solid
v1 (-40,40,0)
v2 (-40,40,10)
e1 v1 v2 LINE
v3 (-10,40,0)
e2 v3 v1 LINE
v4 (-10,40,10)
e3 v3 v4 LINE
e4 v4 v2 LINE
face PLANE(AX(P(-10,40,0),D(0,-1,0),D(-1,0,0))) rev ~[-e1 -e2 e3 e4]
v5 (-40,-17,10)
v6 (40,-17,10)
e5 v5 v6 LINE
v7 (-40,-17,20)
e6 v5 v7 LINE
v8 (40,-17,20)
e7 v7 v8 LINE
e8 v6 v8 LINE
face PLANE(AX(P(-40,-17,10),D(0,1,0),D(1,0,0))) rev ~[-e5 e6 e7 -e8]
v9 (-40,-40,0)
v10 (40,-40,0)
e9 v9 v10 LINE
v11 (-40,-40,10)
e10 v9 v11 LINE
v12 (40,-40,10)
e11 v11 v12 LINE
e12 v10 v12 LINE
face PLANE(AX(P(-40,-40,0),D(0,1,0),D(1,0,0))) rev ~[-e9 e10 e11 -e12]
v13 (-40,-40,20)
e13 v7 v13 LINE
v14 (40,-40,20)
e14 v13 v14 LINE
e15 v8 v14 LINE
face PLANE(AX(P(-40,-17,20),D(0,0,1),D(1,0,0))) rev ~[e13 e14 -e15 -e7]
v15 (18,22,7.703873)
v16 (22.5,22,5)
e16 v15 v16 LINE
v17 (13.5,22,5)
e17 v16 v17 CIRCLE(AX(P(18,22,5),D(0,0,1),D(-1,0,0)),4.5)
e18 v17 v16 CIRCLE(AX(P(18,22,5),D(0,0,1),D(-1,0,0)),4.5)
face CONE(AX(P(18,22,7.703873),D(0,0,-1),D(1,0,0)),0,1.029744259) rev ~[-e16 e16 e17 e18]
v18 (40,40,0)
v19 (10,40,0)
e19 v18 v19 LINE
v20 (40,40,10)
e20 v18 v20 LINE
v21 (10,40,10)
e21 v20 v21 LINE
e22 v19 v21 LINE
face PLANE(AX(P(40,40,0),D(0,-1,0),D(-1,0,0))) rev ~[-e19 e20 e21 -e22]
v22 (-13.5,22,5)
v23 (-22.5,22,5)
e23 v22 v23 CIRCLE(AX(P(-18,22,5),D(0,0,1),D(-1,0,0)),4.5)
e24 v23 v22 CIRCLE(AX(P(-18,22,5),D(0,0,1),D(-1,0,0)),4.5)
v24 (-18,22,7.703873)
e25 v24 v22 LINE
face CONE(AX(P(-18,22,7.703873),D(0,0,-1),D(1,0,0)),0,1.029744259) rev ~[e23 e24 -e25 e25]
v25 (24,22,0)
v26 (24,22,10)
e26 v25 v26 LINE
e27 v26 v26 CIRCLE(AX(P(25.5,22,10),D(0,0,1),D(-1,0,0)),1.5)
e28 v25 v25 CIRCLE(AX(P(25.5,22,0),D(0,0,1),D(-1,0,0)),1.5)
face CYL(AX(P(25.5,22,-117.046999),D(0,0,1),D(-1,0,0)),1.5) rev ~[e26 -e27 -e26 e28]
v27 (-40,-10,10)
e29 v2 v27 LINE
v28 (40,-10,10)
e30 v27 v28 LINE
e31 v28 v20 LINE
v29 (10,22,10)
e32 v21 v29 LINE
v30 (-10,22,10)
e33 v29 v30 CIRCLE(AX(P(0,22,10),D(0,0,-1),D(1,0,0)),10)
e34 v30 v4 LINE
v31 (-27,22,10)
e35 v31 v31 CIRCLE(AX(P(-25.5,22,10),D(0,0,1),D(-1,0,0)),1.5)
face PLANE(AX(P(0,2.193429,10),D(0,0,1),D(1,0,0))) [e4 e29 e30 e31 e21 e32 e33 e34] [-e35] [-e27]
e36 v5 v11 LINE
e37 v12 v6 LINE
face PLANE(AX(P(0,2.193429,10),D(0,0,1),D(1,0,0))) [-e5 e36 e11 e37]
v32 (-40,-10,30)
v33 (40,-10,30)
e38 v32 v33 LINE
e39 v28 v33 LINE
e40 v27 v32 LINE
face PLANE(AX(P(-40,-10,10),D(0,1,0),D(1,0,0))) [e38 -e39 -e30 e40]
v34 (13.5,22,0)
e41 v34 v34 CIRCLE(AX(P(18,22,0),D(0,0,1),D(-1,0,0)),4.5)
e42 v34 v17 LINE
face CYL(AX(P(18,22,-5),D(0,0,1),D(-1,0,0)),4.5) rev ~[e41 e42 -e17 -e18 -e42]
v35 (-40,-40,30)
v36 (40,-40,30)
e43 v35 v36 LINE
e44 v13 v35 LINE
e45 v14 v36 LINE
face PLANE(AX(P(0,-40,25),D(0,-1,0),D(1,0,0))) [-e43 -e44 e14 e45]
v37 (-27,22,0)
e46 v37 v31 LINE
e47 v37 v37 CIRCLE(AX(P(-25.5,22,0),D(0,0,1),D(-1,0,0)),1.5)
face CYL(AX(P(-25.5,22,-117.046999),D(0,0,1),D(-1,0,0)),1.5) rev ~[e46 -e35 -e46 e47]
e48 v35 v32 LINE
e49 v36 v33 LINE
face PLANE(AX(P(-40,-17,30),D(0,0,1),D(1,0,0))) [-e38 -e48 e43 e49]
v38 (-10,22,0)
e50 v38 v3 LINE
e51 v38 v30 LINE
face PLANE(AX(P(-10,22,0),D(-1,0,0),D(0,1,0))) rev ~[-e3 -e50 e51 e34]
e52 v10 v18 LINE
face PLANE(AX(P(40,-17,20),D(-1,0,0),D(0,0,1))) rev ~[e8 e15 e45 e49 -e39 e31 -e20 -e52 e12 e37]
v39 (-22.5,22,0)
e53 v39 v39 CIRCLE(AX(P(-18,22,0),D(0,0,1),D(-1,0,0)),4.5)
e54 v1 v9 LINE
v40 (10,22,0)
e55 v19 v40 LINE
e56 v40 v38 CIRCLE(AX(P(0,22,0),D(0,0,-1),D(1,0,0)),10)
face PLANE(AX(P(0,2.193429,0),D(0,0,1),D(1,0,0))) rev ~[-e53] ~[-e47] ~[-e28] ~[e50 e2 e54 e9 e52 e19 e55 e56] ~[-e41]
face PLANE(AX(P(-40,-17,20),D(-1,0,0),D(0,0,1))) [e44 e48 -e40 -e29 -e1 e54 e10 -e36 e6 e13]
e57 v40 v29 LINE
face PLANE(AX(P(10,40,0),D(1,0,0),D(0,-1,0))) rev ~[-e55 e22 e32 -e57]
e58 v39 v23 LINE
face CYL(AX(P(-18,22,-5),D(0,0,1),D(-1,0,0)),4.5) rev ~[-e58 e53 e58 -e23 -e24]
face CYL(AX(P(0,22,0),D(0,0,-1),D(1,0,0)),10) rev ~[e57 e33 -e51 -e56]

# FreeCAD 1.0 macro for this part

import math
import FreeCAD as App
import Part
import Sketcher
from FreeCAD import Vector


def add_polygon(sketch, points):
    """Adds a closed chain of lines whose ends are joined by coincident constraints."""
    first, n = sketch.GeometryCount, len(points)
    for a, b in zip(points, points[1:] + points[:1]):
        sketch.addGeometry(Part.LineSegment(App.Vector(*a, 0), App.Vector(*b, 0)), False)
    for i in range(n):
        sketch.addConstraint(Sketcher.Constraint("Coincident", first + i, 2, first + (i + 1) % n, 1))

doc = App.newDocument("Part")
body = doc.addObject("PartDesign::Body", "Body")

# Sketch on XY plane
sketch1 = body.newObject("Sketcher::SketchObject", "Sketch")
sketch1.AttachmentSupport = (doc.getObject("XY_Plane"), [""])
sketch1.MapMode = "FlatFace"
sketch1.addGeometry([
    Part.LineSegment(Vector(-40, -40, 0), Vector(40, -40, 0)),  # 0
    Part.LineSegment(Vector(40, -40, 0), Vector(40, 40, 0)),  # 1
    Part.LineSegment(Vector(40, 40, 0), Vector(10, 40, 0)),  # 2
    Part.LineSegment(Vector(10, 40, 0), Vector(10, 22, 0)),  # 3
    Part.ArcOfCircle(Part.Circle(Vector(0, 22, 0), Vector(0, 0, 1), 10), math.radians(180), math.radians(360)),  # 4
    Part.LineSegment(Vector(-10, 22, 0), Vector(-10, 40, 0)),  # 5
    Part.LineSegment(Vector(-10, 40, 0), Vector(-40, 40, 0)),  # 6
    Part.LineSegment(Vector(-40, 40, 0), Vector(-40, -40, 0)),  # 7
], False)
sketch1.addConstraint([
    Sketcher.Constraint("Coincident", 0, 2, 1, 1),
    Sketcher.Constraint("Coincident", 1, 2, 2, 1),
    Sketcher.Constraint("Coincident", 2, 2, 3, 1),
    Sketcher.Constraint("Tangent", 3, 2, 4, 2),
    Sketcher.Constraint("Tangent", 4, 1, 5, 1),
    Sketcher.Constraint("Coincident", 5, 2, 6, 1),
    Sketcher.Constraint("Coincident", 6, 2, 7, 1),
    Sketcher.Constraint("Coincident", 7, 2, 0, 1),
    Sketcher.Constraint("Horizontal", 0),
    Sketcher.Constraint("Vertical", 1),
    Sketcher.Constraint("Horizontal", 2),
    Sketcher.Constraint("Vertical", 3),
    Sketcher.Constraint("Vertical", 5),
    Sketcher.Constraint("Horizontal", 6),
    Sketcher.Constraint("Vertical", 7),
    Sketcher.Constraint("Symmetric", 0, 2, 6, 2, -1, 1),
    Sketcher.Constraint("Symmetric", 2, 2, 5, 2, -2),
    Sketcher.Constraint("Equal", 0, 1),
    Sketcher.Constraint("Radius", 4, 10.0),
    Sketcher.Constraint("DistanceX", 0, 1, 0, 2, 80.0),
    Sketcher.Constraint("DistanceY", 3, 2, 3, 1, 18.0),
])
pad1 = body.newObject("PartDesign::Pad", "Pad")
pad1.Profile = sketch1
pad1.Length = 10

# Sketch on XY plane
sketch2 = body.newObject("Sketcher::SketchObject", "Sketch001")
sketch2.AttachmentSupport = (doc.getObject("XY_Plane"), [""])
sketch2.MapMode = "FlatFace"
sketch2.AttachmentOffset = App.Placement(Vector(0, 0, 10), App.Rotation())
add_polygon(sketch2, [(-40, -10), (-40, -17), (40, -17), (40, -10)])  # lines 0-3
sketch2.addConstraint([
    Sketcher.Constraint("Vertical", 0),
    Sketcher.Constraint("Horizontal", 1),
    Sketcher.Constraint("Vertical", 2),
    Sketcher.Constraint("Horizontal", 3),
    Sketcher.Constraint("DistanceX", 1, 1, 1, 2, 80.0),
    Sketcher.Constraint("DistanceY", 0, 2, 0, 1, 7.0),
    Sketcher.Constraint("DistanceX", 0, 2, -1, 1, 40.0),
    Sketcher.Constraint("DistanceY", 0, 2, -1, 1, 17.0),
])
pad2 = body.newObject("PartDesign::Pad", "Pad001")
pad2.Profile = sketch2
pad2.Length = 20

# Sketch on XZ plane
sketch3 = body.newObject("Sketcher::SketchObject", "Sketch002")
sketch3.AttachmentSupport = (doc.getObject("XZ_Plane"), [""])
sketch3.MapMode = "FlatFace"
sketch3.AttachmentOffset = App.Placement(Vector(0, 0, 17), App.Rotation())
add_polygon(sketch3, [(-40, 30), (-40, 20), (40, 20), (40, 30)])  # lines 0-3
sketch3.addConstraint([
    Sketcher.Constraint("Vertical", 0),
    Sketcher.Constraint("Horizontal", 1),
    Sketcher.Constraint("Vertical", 2),
    Sketcher.Constraint("Horizontal", 3),
    Sketcher.Constraint("DistanceX", 1, 1, 1, 2, 80.0),
    Sketcher.Constraint("DistanceY", 0, 2, 0, 1, 10.0),
    Sketcher.Constraint("DistanceX", 0, 2, -1, 1, 40.0),
    Sketcher.Constraint("DistanceY", -1, 1, 0, 2, 20.0),
])
pad3 = body.newObject("PartDesign::Pad", "Pad002")
pad3.Profile = sketch3
pad3.Length = 23

# Sketch on XY plane
sketch4 = body.newObject("Sketcher::SketchObject", "Sketch003")
sketch4.AttachmentSupport = (doc.getObject("XY_Plane"), [""])
sketch4.MapMode = "FlatFace"
sketch4.addGeometry(Part.Circle(Vector(25.5, 22, 0), Vector(0, 0, 1), 1.5), False)
sketch4.addConstraint([
    Sketcher.Constraint("Diameter", 0, 3.0),
    Sketcher.Constraint("DistanceY", -1, 1, 0, 3, 22.0),
    Sketcher.Constraint("DistanceX", -1, 1, 0, 3, 25.5),
])
doc.recompute()
hole = body.newObject("PartDesign::Hole", "Hole")
hole.Profile = sketch4
hole.ThreadType = "None"
hole.Diameter = 3
hole.DepthType = "ThroughAll"
hole.Reversed = True

# Sketch on XY plane
sketch5 = body.newObject("Sketcher::SketchObject", "Sketch004")
sketch5.AttachmentSupport = (doc.getObject("XY_Plane"), [""])
sketch5.MapMode = "FlatFace"
sketch5.addGeometry(Part.Circle(Vector(-25.5, 22, 0), Vector(0, 0, 1), 1.5), False)
sketch5.addConstraint([
    Sketcher.Constraint("Diameter", 0, 3.0),
    Sketcher.Constraint("DistanceY", -1, 1, 0, 3, 22.0),
    Sketcher.Constraint("DistanceX", 0, 3, -1, 1, 25.5),
])
doc.recompute()
hole2 = body.newObject("PartDesign::Hole", "Hole001")
hole2.Profile = sketch5
hole2.ThreadType = "None"
hole2.Diameter = 3
hole2.DepthType = "ThroughAll"
hole2.Reversed = True

# Sketch on XY plane
sketch6 = body.newObject("Sketcher::SketchObject", "Sketch005")
sketch6.AttachmentSupport = (doc.getObject("XY_Plane"), [""])
sketch6.MapMode = "FlatFace"
sketch6.addGeometry([
    Part.Circle(Vector(18, 22, 0), Vector(0, 0, 1), 4.5),
    Part.Circle(Vector(-18, 22, 0), Vector(0, 0, 1), 4.5),
], False)
sketch6.addConstraint([
    Sketcher.Constraint("Equal", 0, 1),
    Sketcher.Constraint("Symmetric", 0, 3, 1, 3, -2),
    Sketcher.Constraint("Diameter", 0, 9.0),
    Sketcher.Constraint("DistanceX", -1, 1, 0, 3, 18.0),
    Sketcher.Constraint("DistanceY", -1, 1, 0, 3, 22.0),
])
doc.recompute()
hole3 = body.newObject("PartDesign::Hole", "Hole002")
hole3.Profile = sketch6
hole3.ThreadType = "None"
hole3.Diameter = 9
hole3.DepthType = "Dimension"
hole3.Depth = 5
hole3.DrillPoint = "Angled"
hole3.DrillPointAngle = 118
hole3.Reversed = True

doc.recompute()
